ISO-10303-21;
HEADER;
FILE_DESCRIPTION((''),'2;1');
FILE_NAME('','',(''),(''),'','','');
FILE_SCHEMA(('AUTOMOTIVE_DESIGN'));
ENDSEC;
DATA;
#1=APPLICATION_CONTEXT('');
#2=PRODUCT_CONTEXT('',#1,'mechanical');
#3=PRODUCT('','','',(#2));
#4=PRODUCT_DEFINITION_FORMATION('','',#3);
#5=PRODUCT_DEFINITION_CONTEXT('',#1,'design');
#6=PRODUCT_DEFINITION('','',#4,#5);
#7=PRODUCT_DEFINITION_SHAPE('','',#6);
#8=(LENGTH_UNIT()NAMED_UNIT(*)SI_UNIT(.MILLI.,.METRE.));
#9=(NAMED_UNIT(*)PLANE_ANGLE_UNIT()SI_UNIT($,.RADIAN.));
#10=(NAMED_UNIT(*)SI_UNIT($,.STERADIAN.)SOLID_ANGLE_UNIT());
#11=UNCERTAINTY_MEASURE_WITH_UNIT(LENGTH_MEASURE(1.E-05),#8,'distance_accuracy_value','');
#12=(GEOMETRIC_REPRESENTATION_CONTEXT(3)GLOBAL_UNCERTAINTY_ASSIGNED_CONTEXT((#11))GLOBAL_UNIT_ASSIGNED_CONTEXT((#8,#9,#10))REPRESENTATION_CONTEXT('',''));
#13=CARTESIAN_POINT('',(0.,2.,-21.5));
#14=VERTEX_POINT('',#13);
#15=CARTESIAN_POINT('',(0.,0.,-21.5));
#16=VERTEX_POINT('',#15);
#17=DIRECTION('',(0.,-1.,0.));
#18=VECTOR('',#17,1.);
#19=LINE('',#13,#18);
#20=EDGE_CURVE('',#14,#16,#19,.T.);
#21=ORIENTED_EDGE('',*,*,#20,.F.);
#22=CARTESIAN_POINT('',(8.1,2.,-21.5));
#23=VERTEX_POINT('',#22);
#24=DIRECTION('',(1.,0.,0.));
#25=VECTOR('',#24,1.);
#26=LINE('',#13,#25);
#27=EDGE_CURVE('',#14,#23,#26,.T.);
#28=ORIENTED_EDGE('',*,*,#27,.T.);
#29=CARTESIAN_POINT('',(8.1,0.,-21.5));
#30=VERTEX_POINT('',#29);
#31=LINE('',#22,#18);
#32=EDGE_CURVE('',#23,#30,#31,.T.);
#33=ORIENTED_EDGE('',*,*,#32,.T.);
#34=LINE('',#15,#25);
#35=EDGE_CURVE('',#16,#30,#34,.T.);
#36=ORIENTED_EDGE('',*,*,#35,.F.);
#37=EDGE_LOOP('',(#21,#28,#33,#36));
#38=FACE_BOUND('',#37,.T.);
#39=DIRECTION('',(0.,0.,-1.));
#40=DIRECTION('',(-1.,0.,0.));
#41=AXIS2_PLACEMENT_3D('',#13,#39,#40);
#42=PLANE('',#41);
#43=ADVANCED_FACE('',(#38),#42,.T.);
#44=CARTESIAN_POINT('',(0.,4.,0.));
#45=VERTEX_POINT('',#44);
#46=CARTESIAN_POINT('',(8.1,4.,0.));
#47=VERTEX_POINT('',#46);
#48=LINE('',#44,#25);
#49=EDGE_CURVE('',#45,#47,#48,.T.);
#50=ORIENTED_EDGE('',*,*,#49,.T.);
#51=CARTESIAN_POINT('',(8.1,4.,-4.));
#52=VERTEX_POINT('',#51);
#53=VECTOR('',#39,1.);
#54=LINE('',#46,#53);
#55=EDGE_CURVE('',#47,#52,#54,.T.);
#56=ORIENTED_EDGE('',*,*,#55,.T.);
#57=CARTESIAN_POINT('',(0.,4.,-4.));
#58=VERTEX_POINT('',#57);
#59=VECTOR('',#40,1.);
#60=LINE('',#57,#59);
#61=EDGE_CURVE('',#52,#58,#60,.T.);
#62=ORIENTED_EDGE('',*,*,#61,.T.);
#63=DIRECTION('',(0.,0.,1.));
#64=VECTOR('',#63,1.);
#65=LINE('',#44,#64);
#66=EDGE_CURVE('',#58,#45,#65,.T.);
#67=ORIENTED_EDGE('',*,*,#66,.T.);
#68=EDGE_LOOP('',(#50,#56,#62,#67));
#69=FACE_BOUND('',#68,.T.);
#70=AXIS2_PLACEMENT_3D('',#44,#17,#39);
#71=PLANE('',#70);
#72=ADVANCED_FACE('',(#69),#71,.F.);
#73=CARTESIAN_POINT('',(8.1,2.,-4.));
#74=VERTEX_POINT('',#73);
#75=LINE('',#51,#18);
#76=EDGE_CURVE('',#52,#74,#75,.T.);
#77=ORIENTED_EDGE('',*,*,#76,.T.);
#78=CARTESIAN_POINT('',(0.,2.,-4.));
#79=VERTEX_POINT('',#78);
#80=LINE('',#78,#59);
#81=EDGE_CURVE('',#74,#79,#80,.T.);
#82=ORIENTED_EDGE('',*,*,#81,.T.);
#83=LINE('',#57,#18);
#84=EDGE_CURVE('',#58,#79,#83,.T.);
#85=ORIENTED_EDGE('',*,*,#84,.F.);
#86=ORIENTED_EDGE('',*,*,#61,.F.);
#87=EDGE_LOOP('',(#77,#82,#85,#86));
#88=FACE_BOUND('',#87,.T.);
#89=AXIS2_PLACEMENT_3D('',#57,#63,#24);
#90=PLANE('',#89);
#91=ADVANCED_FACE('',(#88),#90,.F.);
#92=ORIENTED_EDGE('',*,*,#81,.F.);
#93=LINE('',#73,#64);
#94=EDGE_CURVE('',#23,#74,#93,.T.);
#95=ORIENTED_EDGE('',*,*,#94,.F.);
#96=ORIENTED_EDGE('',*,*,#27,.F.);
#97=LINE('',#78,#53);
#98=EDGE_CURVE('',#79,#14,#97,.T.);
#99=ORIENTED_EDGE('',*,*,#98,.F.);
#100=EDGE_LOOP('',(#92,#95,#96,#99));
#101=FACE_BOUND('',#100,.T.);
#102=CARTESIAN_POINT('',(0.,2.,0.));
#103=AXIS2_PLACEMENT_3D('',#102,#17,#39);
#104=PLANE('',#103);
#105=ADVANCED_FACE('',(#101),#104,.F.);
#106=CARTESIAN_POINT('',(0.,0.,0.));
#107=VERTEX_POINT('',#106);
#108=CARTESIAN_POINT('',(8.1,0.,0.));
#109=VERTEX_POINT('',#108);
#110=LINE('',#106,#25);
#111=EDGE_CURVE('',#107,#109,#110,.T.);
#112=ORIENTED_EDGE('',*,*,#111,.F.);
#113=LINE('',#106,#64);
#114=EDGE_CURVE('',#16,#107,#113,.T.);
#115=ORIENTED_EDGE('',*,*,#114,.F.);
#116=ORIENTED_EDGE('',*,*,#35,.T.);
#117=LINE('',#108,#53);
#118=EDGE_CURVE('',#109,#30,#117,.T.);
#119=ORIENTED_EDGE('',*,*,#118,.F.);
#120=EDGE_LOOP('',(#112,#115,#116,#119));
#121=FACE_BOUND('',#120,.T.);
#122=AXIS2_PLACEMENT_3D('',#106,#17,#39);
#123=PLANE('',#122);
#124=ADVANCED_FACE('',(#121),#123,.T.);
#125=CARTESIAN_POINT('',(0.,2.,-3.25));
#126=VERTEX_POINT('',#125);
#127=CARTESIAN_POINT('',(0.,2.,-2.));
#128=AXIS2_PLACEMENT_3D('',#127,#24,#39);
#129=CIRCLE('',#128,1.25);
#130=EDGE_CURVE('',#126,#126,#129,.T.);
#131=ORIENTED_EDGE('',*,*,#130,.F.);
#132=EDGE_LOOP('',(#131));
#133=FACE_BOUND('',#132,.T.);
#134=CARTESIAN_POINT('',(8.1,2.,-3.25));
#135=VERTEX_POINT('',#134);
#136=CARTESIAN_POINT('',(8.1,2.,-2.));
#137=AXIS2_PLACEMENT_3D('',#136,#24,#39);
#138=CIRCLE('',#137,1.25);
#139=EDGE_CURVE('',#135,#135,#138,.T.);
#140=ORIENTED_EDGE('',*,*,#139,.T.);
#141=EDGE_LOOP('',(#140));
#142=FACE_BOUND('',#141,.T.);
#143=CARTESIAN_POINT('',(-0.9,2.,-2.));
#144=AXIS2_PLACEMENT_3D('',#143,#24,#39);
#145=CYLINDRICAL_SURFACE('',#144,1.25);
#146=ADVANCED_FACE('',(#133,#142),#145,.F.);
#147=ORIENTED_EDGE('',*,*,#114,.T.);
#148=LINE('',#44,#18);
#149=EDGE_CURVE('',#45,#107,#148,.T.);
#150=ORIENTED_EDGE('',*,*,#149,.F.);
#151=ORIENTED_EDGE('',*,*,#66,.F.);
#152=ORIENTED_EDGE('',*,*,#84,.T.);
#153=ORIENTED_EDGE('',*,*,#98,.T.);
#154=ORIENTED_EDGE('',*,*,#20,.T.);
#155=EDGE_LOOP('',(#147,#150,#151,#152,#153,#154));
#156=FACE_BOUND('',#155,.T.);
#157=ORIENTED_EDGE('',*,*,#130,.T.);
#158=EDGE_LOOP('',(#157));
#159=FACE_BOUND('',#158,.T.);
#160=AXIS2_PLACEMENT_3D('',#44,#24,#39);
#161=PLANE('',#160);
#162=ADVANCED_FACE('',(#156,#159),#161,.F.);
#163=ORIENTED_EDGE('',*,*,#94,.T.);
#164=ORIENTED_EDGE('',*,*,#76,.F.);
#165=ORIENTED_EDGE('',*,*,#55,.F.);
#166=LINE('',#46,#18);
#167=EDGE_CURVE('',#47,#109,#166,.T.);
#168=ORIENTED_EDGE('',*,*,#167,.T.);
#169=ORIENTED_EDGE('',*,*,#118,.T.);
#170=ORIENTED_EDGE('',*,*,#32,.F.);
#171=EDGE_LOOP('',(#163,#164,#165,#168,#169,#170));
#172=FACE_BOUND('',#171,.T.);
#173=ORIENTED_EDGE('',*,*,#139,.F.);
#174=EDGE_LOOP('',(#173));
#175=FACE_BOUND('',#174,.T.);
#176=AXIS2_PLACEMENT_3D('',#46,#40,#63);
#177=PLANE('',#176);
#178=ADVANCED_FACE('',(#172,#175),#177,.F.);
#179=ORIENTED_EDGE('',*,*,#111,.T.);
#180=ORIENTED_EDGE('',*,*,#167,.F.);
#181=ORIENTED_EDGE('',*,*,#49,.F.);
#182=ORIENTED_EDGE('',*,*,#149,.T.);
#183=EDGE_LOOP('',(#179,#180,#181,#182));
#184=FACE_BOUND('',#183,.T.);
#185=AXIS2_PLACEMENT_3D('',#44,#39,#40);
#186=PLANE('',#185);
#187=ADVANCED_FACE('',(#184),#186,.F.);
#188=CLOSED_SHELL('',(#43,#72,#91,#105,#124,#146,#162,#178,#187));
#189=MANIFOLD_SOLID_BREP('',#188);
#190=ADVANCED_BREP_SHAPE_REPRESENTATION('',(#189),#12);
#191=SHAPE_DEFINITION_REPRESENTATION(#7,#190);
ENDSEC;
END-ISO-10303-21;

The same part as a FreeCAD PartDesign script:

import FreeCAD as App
import Part
import Sketcher
from FreeCAD import Vector
Q = App.Units.Quantity


def add_polygon(sketch, points):
    """Adds a closed chain of lines whose ends are joined by coincident constraints."""
    first, n = sketch.GeometryCount, len(points)
    for a, b in zip(points, points[1:] + points[:1]):
        sketch.addGeometry(Part.LineSegment(App.Vector(*a, 0), App.Vector(*b, 0)), False)
    for i in range(n):
        sketch.addConstraint(Sketcher.Constraint("Coincident", first + i, 2, first + (i + 1) % n, 1))

doc = App.newDocument("Part")
body = doc.addObject("PartDesign::Body", "Body")

# Sketch on XZ plane
sketch1 = doc.addObject("Sketcher::SketchObject", "Sketch")
body.addObject(sketch1)
sketch1.AttachmentSupport = (doc.XZ_Plane, [""])
sketch1.MapMode = "FlatFace"
add_polygon(sketch1, [(0, -4), (0, 0), (8.1, 0), (8.1, -4)])  # lines 0-3
sketch1.addConstraint([
    Sketcher.Constraint("Vertical", 0),
    Sketcher.Constraint("Horizontal", 1),
    Sketcher.Constraint("Vertical", 2),
    Sketcher.Constraint("Horizontal", 3),
    Sketcher.Constraint("Coincident", 0, 2, -1, 1),
    Sketcher.Constraint("DistanceY", 0, 1, 0, 2, Q("4 mm")),
    Sketcher.Constraint("DistanceX", 1, 1, 1, 2, Q("8.1 mm")),
])
pad1 = doc.addObject("PartDesign::Pad", "Pad")
body.addObject(pad1)
pad1.Profile = sketch1
pad1.Length = 4
pad1.Reversed = True

# Sketch on YZ plane
sketch2 = doc.addObject("Sketcher::SketchObject", "Sketch001")
body.addObject(sketch2)
sketch2.AttachmentSupport = (doc.YZ_Plane, [""])
sketch2.MapMode = "FlatFace"
sketch2.AttachmentOffset = App.Placement(Vector(0, 0, 8.1), App.Rotation())
sketch2.addGeometry(Part.Circle(Vector(2, -2, 0), Vector(0, 0, 1), 1.2), False)
sketch2.addConstraint([
    Sketcher.Constraint("Diameter", 0, Q("2.5 mm")),
    Sketcher.Constraint("DistanceX", -1, 1, 0, 3, Q("2 mm")),
    Sketcher.Constraint("DistanceY", 0, 3, -1, 1, Q("2 mm")),
])
pocket1 = doc.addObject("PartDesign::Pocket", "Pocket")
body.addObject(pocket1)
pocket1.Profile = sketch2
pocket1.Length = 9

# Sketch on XZ plane
sketch3 = doc.addObject("Sketcher::SketchObject", "Sketch002")
body.addObject(sketch3)
sketch3.AttachmentSupport = (doc.XZ_Plane, [""])
sketch3.MapMode = "FlatFace"
add_polygon(sketch3, [(8, -22), (8, -4), (0, -4), (0, -22)])  # lines 0-3
sketch3.addConstraint([
    Sketcher.Constraint("Vertical", 0),
    Sketcher.Constraint("Horizontal", 1),
    Sketcher.Constraint("Vertical", 2),
    Sketcher.Constraint("Horizontal", 3),
    Sketcher.Constraint("PointOnObject", 1, 2, -2),
    Sketcher.Constraint("DistanceX", 1, 2, 1, 1, Q("8.1 mm")),
    Sketcher.Constraint("DistanceY", 0, 1, 0, 2, Q("17.5 mm")),
    Sketcher.Constraint("DistanceY", 0, 2, -1, 1, Q("4 mm")),
])
pad2 = doc.addObject("PartDesign::Pad", "Pad001")
body.addObject(pad2)
pad2.Profile = sketch3
pad2.Length = 2
pad2.Reversed = True

doc.recompute()
